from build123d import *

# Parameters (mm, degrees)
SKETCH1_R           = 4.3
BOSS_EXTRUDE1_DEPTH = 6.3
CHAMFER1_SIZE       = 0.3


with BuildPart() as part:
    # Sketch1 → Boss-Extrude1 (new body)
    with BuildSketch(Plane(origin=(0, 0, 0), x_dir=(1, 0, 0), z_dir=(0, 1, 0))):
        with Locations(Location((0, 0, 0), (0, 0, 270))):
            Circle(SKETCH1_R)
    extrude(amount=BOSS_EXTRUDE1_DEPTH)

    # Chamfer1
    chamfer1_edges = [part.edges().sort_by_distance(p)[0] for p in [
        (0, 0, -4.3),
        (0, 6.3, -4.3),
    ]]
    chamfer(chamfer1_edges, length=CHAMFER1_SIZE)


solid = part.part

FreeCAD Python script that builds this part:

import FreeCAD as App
import Part
import Sketcher
from FreeCAD import Vector
Q = App.Units.Quantity


def edges_at(feature, points):
    """Names of the edges that pass closest to the given points."""
    edges = feature.Shape.Edges
    near = lambda p: min(range(len(edges)), key=lambda i: edges[i].distToShape(Part.Vertex(*p))[0])
    return sorted({f"Edge{near(p) + 1}" for p in points})

doc = App.newDocument("Part")
body = doc.addObject("PartDesign::Body", "Body")

# Sketch on XZ plane
sketch1 = body.newObject("Sketcher::SketchObject", "Sketch")
sketch1.AttachmentSupport = (doc.getObject("XZ_Plane"), [""])
sketch1.MapMode = "FlatFace"
sketch1.addGeometry(Part.Circle(Vector(0, 0, 0), Vector(0, 0, 1), 4.3), False)
sketch1.addConstraint([
    Sketcher.Constraint("Coincident", 0, 3, -1, 1),
    Sketcher.Constraint("Diameter", 0, Q("8.6 mm")),
])
pad1 = body.newObject("PartDesign::Pad", "Pad")
pad1.Profile = sketch1
pad1.Length = 6.3
pad1.Reversed = True
doc.recompute()

chamfer = body.newObject("PartDesign::Chamfer", "Chamfer")
chamfer.Base = (pad1, edges_at(pad1, [(0, 0, -4.3), (0, 6.3, -4.3)]))
chamfer.Size = 0.3

doc.recompute()
